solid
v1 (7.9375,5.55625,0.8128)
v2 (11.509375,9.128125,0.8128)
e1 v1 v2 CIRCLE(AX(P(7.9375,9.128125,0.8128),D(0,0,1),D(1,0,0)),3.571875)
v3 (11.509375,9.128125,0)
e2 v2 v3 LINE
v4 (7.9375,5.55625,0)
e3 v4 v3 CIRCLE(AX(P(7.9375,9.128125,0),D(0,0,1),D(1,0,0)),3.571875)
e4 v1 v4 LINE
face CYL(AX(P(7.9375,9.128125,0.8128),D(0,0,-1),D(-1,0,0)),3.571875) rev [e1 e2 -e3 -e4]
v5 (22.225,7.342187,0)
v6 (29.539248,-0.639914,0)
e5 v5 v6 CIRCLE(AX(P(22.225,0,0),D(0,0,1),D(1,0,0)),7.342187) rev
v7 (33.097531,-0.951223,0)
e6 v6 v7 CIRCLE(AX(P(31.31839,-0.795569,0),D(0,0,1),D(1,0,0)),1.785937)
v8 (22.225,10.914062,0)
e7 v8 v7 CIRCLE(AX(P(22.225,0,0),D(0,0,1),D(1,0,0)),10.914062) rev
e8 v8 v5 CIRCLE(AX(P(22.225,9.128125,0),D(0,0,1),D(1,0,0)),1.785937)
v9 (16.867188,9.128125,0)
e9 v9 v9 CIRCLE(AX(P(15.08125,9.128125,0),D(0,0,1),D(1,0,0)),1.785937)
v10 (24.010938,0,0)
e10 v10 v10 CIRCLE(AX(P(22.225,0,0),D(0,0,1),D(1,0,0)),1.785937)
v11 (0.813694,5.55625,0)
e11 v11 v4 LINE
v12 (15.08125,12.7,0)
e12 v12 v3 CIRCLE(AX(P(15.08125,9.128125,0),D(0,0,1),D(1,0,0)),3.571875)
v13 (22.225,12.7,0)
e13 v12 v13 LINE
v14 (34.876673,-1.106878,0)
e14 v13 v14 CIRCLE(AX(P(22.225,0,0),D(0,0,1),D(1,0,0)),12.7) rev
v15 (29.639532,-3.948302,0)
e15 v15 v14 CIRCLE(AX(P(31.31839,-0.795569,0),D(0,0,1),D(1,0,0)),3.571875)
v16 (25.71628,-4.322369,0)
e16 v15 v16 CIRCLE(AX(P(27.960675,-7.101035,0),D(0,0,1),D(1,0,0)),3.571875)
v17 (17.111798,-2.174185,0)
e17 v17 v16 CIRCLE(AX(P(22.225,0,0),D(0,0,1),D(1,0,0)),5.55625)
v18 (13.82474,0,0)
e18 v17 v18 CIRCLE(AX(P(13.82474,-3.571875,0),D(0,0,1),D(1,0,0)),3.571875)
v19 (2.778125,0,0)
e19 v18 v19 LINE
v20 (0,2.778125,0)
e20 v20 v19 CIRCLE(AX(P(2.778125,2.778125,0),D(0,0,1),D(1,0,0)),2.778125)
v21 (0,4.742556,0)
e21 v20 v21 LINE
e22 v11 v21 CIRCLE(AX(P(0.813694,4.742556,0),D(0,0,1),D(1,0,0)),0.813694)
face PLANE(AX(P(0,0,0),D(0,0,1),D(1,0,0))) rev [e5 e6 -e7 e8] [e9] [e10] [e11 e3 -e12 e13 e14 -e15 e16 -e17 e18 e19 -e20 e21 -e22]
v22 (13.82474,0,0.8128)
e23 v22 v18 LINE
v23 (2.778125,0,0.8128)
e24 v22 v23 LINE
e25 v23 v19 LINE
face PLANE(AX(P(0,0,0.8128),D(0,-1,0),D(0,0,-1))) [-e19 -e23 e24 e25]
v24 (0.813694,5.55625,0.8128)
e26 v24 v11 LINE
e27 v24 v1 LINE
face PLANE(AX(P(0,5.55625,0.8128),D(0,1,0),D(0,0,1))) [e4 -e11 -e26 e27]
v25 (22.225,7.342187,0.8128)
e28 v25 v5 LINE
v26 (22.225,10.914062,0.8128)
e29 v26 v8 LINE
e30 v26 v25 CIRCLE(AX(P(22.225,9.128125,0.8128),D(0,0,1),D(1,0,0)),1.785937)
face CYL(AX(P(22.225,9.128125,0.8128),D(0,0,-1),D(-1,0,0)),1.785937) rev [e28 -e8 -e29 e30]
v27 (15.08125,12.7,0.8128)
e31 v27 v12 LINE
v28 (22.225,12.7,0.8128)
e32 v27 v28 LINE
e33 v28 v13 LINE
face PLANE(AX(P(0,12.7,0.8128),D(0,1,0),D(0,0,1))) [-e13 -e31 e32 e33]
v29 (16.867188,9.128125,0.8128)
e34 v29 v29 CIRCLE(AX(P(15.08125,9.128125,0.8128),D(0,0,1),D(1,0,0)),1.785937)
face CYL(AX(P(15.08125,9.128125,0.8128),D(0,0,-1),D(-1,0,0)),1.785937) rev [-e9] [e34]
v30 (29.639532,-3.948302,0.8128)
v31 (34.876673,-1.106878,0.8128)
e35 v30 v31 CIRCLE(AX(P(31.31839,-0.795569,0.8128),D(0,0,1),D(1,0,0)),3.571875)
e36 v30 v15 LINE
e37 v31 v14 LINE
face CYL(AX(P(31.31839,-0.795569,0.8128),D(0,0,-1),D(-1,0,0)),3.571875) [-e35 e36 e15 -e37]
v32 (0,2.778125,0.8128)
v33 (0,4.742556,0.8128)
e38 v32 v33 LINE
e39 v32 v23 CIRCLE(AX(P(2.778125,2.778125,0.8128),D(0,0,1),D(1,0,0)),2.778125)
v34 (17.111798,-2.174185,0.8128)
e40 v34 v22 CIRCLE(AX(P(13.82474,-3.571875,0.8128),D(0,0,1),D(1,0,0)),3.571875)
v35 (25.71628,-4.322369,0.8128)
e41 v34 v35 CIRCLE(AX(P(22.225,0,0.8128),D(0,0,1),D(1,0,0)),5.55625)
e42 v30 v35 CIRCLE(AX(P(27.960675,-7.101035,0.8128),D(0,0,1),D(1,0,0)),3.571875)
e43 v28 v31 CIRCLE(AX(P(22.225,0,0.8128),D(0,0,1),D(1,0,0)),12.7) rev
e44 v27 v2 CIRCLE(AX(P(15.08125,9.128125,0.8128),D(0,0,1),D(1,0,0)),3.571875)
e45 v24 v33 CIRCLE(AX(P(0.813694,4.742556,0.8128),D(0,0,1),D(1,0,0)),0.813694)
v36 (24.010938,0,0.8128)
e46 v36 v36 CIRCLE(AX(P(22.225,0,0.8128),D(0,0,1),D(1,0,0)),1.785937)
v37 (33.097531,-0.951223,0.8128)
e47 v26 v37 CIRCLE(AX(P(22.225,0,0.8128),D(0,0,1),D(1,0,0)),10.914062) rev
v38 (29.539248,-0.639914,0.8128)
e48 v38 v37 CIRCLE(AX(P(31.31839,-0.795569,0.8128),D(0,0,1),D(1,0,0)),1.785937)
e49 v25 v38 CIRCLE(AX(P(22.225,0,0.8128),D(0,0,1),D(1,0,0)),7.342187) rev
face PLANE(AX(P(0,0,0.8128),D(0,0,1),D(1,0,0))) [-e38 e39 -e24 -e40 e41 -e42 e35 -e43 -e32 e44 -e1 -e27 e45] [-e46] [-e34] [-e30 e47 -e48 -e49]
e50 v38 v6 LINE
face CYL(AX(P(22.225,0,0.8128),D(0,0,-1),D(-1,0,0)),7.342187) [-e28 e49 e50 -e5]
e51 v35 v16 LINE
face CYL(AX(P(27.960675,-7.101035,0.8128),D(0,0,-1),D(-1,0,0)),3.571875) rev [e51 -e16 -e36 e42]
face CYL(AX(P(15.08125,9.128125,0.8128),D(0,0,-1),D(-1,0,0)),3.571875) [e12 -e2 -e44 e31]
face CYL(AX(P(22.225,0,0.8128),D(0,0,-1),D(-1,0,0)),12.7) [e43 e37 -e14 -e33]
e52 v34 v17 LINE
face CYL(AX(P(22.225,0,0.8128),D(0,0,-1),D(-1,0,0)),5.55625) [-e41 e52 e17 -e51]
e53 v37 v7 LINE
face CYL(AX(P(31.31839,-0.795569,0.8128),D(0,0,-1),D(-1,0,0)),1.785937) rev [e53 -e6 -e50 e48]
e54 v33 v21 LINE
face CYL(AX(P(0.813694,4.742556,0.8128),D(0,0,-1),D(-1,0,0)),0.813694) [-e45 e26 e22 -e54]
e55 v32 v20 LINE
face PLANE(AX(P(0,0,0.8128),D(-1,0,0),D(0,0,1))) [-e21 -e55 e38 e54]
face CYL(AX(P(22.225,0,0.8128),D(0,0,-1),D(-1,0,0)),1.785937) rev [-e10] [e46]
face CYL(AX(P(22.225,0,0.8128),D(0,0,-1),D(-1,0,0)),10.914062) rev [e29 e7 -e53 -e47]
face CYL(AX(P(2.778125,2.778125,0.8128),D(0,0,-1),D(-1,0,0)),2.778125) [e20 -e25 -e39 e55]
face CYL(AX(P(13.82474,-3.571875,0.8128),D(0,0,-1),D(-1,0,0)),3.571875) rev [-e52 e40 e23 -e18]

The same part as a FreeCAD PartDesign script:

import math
import FreeCAD as App
import Part
import Sketcher

V = App.Vector
Q = App.Units.Quantity

doc = App.newDocument("Part")
body = doc.addObject("PartDesign::Body", "Body")

# Sketch on XY plane
sketch1 = body.newObject("Sketcher::SketchObject", "Sketch")
sketch1.AttachmentSupport = (doc.getObject("XY_Plane"), [""])
sketch1.MapMode = "FlatFace"
sketch1.addGeometry(Part.LineSegment(V(2.8, 0, 0), V(13.8, 0, 0)), False)
sketch1.addGeometry(Part.ArcOfCircle(Part.Circle(V(13.8, -3.6, 0), V(0, 0, 1), 3.6), math.radians(23), math.radians(90)), False)
sketch1.addGeometry(Part.ArcOfCircle(Part.Circle(V(22.2, 0, 0), V(0, 0, 1), 5.6), math.radians(-157), math.radians(-51)), False)
sketch1.addGeometry(Part.ArcOfCircle(Part.Circle(V(28, -7.1, 0), V(0, 0, 1), 3.6), math.radians(62), math.radians(129)), False)
sketch1.addGeometry(Part.ArcOfCircle(Part.Circle(V(31.3, -0.8, 0), V(0, 0, 1), 3.6), math.radians(-118), math.radians(-5)), False)
sketch1.addGeometry(Part.ArcOfCircle(Part.Circle(V(22.2, 0, 0), V(0, 0, 1), 12.7), math.radians(-5), math.radians(90)), False)
sketch1.addGeometry(Part.LineSegment(V(22.2, 12.7, 0), V(15.1, 12.7, 0)), False)
sketch1.addGeometry(Part.ArcOfCircle(Part.Circle(V(15.1, 9.1, 0), V(0, 0, 1), 3.6), math.radians(90), math.radians(180)), False)
sketch1.addGeometry(Part.ArcOfCircle(Part.Circle(V(7.9, 9.1, 0), V(0, 0, 1), 3.6), math.radians(-90), math.radians(0)), False)
sketch1.addGeometry(Part.LineSegment(V(7.9, 5.6, 0), V(0.8, 5.6, 0)), False)
sketch1.addGeometry(Part.ArcOfCircle(Part.Circle(V(0.8, 4.7, 0), V(0, 0, 1), 0.8), math.radians(90), math.radians(180)), False)
sketch1.addGeometry(Part.LineSegment(V(0, 4.7, 0), V(0, 2.8, 0)), False)
sketch1.addGeometry(Part.ArcOfCircle(Part.Circle(V(2.8, 2.8, 0), V(0, 0, 1), 2.8), math.radians(-180), math.radians(-90)), False)
sketch1.addGeometry(Part.Circle(V(22.2, 0, 0), V(0, 0, 1), 1.8), False)
sketch1.addGeometry(Part.Circle(V(15.1, 9.1, 0), V(0, 0, 1), 1.8), False)
sketch1.addGeometry(Part.ArcOfCircle(Part.Circle(V(22.2, 0, 0), V(0, 0, 1), 10.9), math.radians(-5), math.radians(90)), False)
sketch1.addGeometry(Part.ArcOfCircle(Part.Circle(V(31.3, -0.8, 0), V(0, 0, 1), 1.8), math.radians(175), math.radians(355)), False)
sketch1.addGeometry(Part.ArcOfCircle(Part.Circle(V(22.2, 0, 0), V(0, 0, 1), 7.3), math.radians(-5), math.radians(90)), False)
sketch1.addGeometry(Part.ArcOfCircle(Part.Circle(V(22.2, 9.1, 0), V(0, 0, 1), 1.8), math.radians(90), math.radians(270)), False)
sketch1.addConstraint(Sketcher.Constraint("Tangent", 0, 2, 1, 2))
sketch1.addConstraint(Sketcher.Constraint("Tangent", 1, 1, 2, 1))
sketch1.addConstraint(Sketcher.Constraint("Tangent", 2, 2, 3, 2))
sketch1.addConstraint(Sketcher.Constraint("Tangent", 3, 1, 4, 1))
sketch1.addConstraint(Sketcher.Constraint("Tangent", 4, 2, 5, 1))
sketch1.addConstraint(Sketcher.Constraint("Tangent", 5, 2, 6, 1))
sketch1.addConstraint(Sketcher.Constraint("Tangent", 6, 2, 7, 1))
sketch1.addConstraint(Sketcher.Constraint("Tangent", 7, 2, 8, 2))
sketch1.addConstraint(Sketcher.Constraint("Tangent", 8, 1, 9, 1))
sketch1.addConstraint(Sketcher.Constraint("Tangent", 9, 2, 10, 1))
sketch1.addConstraint(Sketcher.Constraint("Tangent", 10, 2, 11, 1))
sketch1.addConstraint(Sketcher.Constraint("Tangent", 11, 2, 12, 1))
sketch1.addConstraint(Sketcher.Constraint("Tangent", 12, 2, 0, 1))
sketch1.addConstraint(Sketcher.Constraint("Tangent", 15, 1, 16, 2))
sketch1.addConstraint(Sketcher.Constraint("Tangent", 16, 1, 17, 1))
sketch1.addConstraint(Sketcher.Constraint("Tangent", 17, 2, 18, 2))
sketch1.addConstraint(Sketcher.Constraint("Tangent", 18, 1, 15, 2))
sketch1.addConstraint(Sketcher.Constraint("Horizontal", 0))
sketch1.addConstraint(Sketcher.Constraint("Horizontal", 6))
sketch1.addConstraint(Sketcher.Constraint("Horizontal", 9))
sketch1.addConstraint(Sketcher.Constraint("Vertical", 11))
sketch1.addConstraint(Sketcher.Constraint("Coincident", 5, 3, 2, 3))
sketch1.addConstraint(Sketcher.Constraint("Coincident", 13, 3, 2, 3))
sketch1.addConstraint(Sketcher.Constraint("Coincident", 14, 3, 7, 3))
sketch1.addConstraint(Sketcher.Constraint("Coincident", 15, 3, 2, 3))
sketch1.addConstraint(Sketcher.Constraint("Coincident", 16, 3, 4, 3))
sketch1.addConstraint(Sketcher.Constraint("Coincident", 17, 3, 2, 3))
sketch1.addConstraint(Sketcher.Constraint("Equal", 1, 3))
sketch1.addConstraint(Sketcher.Constraint("Equal", 3, 4))
sketch1.addConstraint(Sketcher.Constraint("Equal", 4, 7))
sketch1.addConstraint(Sketcher.Constraint("Equal", 7, 8))
sketch1.addConstraint(Sketcher.Constraint("Equal", 13, 14))
sketch1.addConstraint(Sketcher.Constraint("Equal", 14, 16))
sketch1.addConstraint(Sketcher.Constraint("PointOnObject", 2, 3, -1))
sketch1.addConstraint(Sketcher.Constraint("PointOnObject", 0, 2, -1))
sketch1.addConstraint(Sketcher.Constraint("PointOnObject", 10, 2, -2))
sketch1.addConstraint(Sketcher.Constraint("Horizontal", 7, 3, 8, 3))
sketch1.addConstraint(Sketcher.Constraint("Vertical", 17, 3, 18, 3))
sketch1.addConstraint(Sketcher.Constraint("Radius", 5, Q("0.5 in")))
sketch1.addConstraint(Sketcher.Constraint("Diameter", 13, Q("0.140625 in")))
sketch1.addConstraint(Sketcher.Constraint("Radius", 1, Q("0.140625 in")))
sketch1.addConstraint(Sketcher.Constraint("Radius", 2, Q("0.21875 in")))
sketch1.addConstraint(Sketcher.Constraint("Radius", 12, Q("0.109375 in")))
sketch1.addConstraint(Sketcher.Constraint("DistanceX", 6, 2, 6, 1, Q("0.28125 in")))
sketch1.addConstraint(Sketcher.Constraint("DistanceX", -1, 1, 2, 3, Q("0.875 in")))
sketch1.addConstraint(Sketcher.Constraint("Radius", 10, Q("0.813694 mm")))
sketch1.addConstraint(Sketcher.Constraint("DistanceY", 3, 1, -1, 1, Q("3.948302 mm")))
pad1 = body.newObject("PartDesign::Pad", "Pad")
pad1.Profile = sketch1
pad1.Length = Q("0.032 in")

doc.recompute()
